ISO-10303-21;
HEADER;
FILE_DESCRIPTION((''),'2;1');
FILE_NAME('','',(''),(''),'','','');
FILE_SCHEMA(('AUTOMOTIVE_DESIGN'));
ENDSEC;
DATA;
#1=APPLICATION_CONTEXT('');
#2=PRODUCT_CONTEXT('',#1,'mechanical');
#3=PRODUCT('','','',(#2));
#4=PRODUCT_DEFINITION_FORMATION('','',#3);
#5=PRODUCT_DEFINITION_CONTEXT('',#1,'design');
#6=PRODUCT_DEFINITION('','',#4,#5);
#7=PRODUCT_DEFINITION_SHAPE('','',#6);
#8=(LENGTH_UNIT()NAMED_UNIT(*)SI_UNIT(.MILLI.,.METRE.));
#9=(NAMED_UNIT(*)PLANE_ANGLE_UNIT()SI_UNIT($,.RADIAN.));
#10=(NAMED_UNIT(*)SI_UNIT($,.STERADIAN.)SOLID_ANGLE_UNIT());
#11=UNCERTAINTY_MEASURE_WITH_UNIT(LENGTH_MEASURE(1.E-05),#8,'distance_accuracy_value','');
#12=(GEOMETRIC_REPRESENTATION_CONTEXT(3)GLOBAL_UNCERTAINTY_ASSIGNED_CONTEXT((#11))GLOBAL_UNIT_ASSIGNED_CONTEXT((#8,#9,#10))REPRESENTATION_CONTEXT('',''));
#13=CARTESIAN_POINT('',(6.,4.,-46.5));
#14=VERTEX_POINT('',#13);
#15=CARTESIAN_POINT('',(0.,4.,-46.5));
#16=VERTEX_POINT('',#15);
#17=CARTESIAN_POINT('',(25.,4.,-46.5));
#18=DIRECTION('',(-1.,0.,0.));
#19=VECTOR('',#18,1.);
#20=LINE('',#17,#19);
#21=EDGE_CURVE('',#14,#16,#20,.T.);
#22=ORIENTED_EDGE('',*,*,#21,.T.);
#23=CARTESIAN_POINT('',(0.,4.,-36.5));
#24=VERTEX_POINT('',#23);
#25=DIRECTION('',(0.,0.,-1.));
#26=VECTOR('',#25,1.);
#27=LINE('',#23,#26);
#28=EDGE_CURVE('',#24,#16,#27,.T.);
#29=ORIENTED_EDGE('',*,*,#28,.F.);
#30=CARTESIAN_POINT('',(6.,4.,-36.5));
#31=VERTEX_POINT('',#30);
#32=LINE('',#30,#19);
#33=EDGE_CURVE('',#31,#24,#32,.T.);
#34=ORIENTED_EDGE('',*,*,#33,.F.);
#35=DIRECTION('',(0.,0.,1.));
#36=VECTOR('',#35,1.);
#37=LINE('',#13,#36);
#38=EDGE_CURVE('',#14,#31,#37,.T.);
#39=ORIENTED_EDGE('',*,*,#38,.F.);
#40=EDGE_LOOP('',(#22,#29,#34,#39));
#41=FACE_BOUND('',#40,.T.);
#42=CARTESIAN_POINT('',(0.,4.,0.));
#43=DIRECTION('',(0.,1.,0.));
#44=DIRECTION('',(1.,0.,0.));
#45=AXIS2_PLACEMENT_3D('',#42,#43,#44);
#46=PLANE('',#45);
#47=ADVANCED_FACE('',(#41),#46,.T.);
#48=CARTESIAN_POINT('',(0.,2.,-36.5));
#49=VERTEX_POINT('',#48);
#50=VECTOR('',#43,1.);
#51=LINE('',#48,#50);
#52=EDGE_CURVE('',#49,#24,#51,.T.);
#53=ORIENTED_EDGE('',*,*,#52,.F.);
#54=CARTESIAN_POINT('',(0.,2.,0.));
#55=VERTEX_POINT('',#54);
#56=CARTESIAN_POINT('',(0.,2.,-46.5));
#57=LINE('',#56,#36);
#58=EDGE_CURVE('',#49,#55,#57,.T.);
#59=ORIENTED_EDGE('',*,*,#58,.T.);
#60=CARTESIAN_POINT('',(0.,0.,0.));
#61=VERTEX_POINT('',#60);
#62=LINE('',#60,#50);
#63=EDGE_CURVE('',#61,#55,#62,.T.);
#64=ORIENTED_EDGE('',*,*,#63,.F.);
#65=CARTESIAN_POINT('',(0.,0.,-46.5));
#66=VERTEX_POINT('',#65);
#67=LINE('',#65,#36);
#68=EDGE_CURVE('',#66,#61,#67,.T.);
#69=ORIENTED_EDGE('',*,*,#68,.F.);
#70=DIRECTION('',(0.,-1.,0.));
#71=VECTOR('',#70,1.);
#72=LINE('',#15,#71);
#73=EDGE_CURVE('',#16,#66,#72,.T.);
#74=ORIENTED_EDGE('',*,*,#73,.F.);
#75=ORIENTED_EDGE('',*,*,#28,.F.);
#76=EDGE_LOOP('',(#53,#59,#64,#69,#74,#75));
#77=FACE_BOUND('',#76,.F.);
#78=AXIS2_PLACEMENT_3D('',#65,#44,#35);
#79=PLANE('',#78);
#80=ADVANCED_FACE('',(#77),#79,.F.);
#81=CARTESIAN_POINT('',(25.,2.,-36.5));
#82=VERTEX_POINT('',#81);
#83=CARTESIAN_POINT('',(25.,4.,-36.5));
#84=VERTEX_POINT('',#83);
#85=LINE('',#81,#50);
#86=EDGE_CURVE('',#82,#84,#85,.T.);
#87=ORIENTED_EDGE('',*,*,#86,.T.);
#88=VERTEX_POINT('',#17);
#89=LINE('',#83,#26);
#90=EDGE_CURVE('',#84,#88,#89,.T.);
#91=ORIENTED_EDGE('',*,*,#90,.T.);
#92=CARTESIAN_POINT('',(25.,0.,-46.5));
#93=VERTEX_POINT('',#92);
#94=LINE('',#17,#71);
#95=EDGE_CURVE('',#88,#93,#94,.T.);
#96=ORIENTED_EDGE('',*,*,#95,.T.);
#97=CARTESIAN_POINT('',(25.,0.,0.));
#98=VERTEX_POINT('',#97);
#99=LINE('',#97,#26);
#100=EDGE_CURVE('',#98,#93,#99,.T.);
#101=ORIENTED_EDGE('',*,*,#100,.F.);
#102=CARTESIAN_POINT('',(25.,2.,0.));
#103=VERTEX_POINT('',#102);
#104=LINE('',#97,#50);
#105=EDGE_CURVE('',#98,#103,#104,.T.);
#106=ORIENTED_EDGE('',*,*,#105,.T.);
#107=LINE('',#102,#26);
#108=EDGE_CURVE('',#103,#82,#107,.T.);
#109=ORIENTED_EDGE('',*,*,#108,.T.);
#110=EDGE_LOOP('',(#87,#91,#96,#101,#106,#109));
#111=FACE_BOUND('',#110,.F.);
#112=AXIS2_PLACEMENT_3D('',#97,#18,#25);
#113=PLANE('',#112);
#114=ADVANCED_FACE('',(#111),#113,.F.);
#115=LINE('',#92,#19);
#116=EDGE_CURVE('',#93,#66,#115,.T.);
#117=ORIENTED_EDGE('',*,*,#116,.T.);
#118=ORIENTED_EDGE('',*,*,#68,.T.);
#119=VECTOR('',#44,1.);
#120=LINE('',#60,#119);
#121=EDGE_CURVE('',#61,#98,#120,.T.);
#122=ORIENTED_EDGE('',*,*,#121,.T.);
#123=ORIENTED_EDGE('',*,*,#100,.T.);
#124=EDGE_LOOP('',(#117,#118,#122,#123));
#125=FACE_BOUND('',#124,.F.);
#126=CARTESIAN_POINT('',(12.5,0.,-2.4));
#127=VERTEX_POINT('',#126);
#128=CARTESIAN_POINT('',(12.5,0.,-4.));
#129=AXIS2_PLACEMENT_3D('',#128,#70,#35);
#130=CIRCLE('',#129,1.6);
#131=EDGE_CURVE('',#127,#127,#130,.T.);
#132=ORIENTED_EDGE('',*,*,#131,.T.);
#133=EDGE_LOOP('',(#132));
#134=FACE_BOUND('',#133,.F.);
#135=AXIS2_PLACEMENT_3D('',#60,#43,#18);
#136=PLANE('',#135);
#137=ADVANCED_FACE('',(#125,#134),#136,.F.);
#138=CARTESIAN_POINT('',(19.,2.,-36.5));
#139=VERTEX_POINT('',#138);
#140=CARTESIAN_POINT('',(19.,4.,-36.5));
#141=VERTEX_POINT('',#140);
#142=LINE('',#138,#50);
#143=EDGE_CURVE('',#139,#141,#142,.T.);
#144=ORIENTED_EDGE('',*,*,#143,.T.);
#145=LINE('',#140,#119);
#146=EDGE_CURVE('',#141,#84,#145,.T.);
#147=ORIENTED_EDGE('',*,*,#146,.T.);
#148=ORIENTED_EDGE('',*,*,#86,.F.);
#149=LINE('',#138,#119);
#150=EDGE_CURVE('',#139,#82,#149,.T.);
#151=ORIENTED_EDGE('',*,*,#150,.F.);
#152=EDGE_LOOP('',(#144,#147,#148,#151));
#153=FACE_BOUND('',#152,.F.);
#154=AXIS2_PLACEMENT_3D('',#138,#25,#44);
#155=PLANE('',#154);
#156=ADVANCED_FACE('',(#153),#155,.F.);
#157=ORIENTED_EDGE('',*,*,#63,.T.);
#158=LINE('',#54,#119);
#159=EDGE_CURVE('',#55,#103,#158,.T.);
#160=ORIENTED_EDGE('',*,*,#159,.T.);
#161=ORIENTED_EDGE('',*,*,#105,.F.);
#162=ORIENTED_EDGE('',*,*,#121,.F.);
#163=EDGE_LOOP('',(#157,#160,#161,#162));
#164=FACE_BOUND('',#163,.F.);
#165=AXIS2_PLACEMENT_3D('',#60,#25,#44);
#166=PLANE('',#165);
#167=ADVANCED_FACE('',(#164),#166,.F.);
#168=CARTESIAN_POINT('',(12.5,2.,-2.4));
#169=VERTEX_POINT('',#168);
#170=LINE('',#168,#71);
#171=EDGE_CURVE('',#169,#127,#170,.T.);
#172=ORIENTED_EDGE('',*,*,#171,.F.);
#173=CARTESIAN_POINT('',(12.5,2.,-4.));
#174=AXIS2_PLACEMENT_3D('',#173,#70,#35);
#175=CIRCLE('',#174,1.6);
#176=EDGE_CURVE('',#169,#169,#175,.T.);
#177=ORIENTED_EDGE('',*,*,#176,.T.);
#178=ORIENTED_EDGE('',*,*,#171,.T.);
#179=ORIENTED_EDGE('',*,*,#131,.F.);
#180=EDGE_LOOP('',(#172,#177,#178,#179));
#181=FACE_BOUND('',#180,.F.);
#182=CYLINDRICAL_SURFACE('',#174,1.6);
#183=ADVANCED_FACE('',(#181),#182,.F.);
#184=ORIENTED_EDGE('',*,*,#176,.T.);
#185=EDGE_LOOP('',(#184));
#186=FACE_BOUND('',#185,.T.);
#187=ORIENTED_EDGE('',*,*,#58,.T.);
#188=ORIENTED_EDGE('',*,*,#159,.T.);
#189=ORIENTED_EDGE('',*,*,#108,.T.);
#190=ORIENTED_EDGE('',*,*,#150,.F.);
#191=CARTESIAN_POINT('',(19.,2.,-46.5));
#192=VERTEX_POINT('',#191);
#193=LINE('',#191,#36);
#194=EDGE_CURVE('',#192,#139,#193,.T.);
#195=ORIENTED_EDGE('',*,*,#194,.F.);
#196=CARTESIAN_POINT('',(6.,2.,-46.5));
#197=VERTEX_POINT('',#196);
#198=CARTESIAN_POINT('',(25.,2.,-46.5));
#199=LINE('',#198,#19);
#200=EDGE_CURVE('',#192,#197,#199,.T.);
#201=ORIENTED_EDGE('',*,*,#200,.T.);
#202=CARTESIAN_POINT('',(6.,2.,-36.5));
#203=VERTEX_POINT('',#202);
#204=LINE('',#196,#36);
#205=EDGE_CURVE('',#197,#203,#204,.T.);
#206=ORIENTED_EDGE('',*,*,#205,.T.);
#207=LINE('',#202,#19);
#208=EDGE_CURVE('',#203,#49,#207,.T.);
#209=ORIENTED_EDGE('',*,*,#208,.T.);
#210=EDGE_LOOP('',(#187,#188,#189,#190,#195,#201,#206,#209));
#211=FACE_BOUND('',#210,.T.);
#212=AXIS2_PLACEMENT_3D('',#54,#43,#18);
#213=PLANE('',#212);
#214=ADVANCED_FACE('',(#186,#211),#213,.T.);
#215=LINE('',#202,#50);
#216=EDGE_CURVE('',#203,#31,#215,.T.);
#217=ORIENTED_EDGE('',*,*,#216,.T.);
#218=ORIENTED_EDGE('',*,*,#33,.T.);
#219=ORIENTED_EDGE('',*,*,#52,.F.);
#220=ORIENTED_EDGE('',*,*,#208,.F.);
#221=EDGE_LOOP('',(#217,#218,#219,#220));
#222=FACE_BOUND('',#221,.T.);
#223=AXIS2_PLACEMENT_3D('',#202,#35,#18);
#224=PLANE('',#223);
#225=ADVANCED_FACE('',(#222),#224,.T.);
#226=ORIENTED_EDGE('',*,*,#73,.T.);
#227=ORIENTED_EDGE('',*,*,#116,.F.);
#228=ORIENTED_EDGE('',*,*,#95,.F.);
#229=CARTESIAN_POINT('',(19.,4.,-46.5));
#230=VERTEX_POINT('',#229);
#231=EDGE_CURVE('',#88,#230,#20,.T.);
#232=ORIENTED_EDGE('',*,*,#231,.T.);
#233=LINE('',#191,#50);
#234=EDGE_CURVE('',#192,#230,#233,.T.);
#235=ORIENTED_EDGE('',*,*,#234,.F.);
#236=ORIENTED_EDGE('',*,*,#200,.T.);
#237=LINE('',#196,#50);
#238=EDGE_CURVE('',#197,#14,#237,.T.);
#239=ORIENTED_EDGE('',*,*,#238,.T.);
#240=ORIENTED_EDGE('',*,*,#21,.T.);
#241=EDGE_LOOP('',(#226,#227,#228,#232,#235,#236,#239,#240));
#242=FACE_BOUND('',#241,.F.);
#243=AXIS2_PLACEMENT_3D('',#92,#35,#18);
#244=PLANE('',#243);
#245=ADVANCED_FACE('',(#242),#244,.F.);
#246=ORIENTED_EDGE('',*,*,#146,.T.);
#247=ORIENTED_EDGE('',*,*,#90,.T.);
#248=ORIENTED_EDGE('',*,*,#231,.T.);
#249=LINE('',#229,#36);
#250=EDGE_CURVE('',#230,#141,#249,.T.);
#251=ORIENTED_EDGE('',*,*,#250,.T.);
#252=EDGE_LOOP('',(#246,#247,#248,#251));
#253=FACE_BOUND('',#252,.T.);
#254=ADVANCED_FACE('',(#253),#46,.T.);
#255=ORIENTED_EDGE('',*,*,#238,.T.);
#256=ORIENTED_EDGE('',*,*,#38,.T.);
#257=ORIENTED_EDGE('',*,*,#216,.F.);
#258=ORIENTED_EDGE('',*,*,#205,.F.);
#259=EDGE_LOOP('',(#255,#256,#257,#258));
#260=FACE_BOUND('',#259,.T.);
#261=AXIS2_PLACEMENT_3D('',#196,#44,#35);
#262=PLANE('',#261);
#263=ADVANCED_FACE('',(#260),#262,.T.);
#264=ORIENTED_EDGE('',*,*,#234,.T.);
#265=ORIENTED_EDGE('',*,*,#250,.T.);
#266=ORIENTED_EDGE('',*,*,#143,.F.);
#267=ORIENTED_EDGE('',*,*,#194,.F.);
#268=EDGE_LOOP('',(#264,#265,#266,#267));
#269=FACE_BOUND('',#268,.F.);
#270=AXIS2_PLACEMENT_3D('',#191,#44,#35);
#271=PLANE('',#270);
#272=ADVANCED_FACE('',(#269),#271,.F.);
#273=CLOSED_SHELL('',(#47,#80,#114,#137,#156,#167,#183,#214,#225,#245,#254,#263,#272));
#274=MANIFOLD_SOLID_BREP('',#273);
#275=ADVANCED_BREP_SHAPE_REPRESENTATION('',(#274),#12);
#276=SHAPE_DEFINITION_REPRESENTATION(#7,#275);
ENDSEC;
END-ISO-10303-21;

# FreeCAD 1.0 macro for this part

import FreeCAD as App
import Part
import Sketcher
from FreeCAD import Vector
Q = App.Units.Quantity

doc = App.newDocument("Part")
body = doc.addObject("PartDesign::Body", "Body")

# Sketch on XZ plane
sketch1 = body.newObject("Sketcher::SketchObject", "Sketch")
sketch1.AttachmentSupport = (doc.getObject("XZ_Plane"), [""])
sketch1.MapMode = "FlatFace"
sketch1.addGeometry([
    Part.LineSegment(Vector(0, -46, 0), Vector(0, 0, 0)),
    Part.LineSegment(Vector(0, 0, 0), Vector(25, 0, 0)),
    Part.LineSegment(Vector(25, 0, 0), Vector(25, -46, 0)),
    Part.LineSegment(Vector(25, -46, 0), Vector(0, -46, 0)),
], False)
sketch1.addConstraint([
    Sketcher.Constraint("Coincident", 0, 2, 1, 1),
    Sketcher.Constraint("Coincident", 1, 2, 2, 1),
    Sketcher.Constraint("Coincident", 2, 2, 3, 1),
    Sketcher.Constraint("Coincident", 3, 2, 0, 1),
    Sketcher.Constraint("Vertical", 0),
    Sketcher.Constraint("Horizontal", 1),
    Sketcher.Constraint("Vertical", 2),
    Sketcher.Constraint("Horizontal", 3),
    Sketcher.Constraint("Coincident", 0, 2, -1, 1),
    Sketcher.Constraint("DistanceX", 1, 1, 1, 2, Q("25 mm")),
    Sketcher.Constraint("DistanceY", 0, 1, 0, 2, Q("46.5 mm")),
])
pad1 = body.newObject("PartDesign::Pad", "Pad")
pad1.Profile = sketch1
pad1.Length = 2
pad1.Reversed = True

# Sketch on XZ plane
sketch2 = body.newObject("Sketcher::SketchObject", "Sketch001")
sketch2.AttachmentSupport = (doc.getObject("XZ_Plane"), [""])
sketch2.MapMode = "FlatFace"
sketch2.AttachmentOffset = App.Placement(Vector(0, 0, -2), App.Rotation())
sketch2.addGeometry([
    Part.LineSegment(Vector(25, -36, 0), Vector(25, -46, 0)),  # 0
    Part.LineSegment(Vector(25, -46, 0), Vector(19, -46, 0)),  # 1
    Part.LineSegment(Vector(19, -46, 0), Vector(19, -36, 0)),  # 2
    Part.LineSegment(Vector(19, -36, 0), Vector(25, -36, 0)),  # 3
    Part.LineSegment(Vector(6, -36, 0), Vector(6, -46, 0)),  # 4
    Part.LineSegment(Vector(6, -46, 0), Vector(0, -46, 0)),  # 5
    Part.LineSegment(Vector(0, -46, 0), Vector(0, -36, 0)),  # 6
    Part.LineSegment(Vector(0, -36, 0), Vector(6, -36, 0)),  # 7
], False)
sketch2.addConstraint([
    Sketcher.Constraint("Coincident", 0, 2, 1, 1),
    Sketcher.Constraint("Coincident", 1, 2, 2, 1),
    Sketcher.Constraint("Coincident", 2, 2, 3, 1),
    Sketcher.Constraint("Coincident", 3, 2, 0, 1),
    Sketcher.Constraint("Coincident", 4, 2, 5, 1),
    Sketcher.Constraint("Coincident", 5, 2, 6, 1),
    Sketcher.Constraint("Coincident", 6, 2, 7, 1),
    Sketcher.Constraint("Coincident", 7, 2, 4, 1),
    Sketcher.Constraint("Vertical", 0),
    Sketcher.Constraint("Horizontal", 1),
    Sketcher.Constraint("Vertical", 2),
    Sketcher.Constraint("Horizontal", 3),
    Sketcher.Constraint("Vertical", 4),
    Sketcher.Constraint("Horizontal", 5),
    Sketcher.Constraint("Vertical", 6),
    Sketcher.Constraint("Horizontal", 7),
    Sketcher.Constraint("PointOnObject", 5, 2, -2),
    Sketcher.Constraint("Horizontal", 1, 2, 4, 2),
    Sketcher.Constraint("Horizontal", 3, 2, 6, 2),
    Sketcher.Constraint("Equal", 3, 5),
    Sketcher.Constraint("DistanceX", 1, 2, 1, 1, Q("6 mm")),
    Sketcher.Constraint("DistanceY", 0, 2, 0, 1, Q("10 mm")),
    Sketcher.Constraint("DistanceX", -1, 1, 0, 2, Q("25 mm")),
    Sketcher.Constraint("DistanceY", 0, 2, -1, 1, Q("46.5 mm")),
])
pad2 = body.newObject("PartDesign::Pad", "Pad001")
pad2.Profile = sketch2
pad2.Length = 2
pad2.Reversed = True

# Sketch on XZ plane
sketch3 = body.newObject("Sketcher::SketchObject", "Sketch002")
sketch3.AttachmentSupport = (doc.getObject("XZ_Plane"), [""])
sketch3.MapMode = "FlatFace"
sketch3.AttachmentOffset = App.Placement(Vector(0, 0, -2), App.Rotation())
sketch3.addGeometry(Part.Circle(Vector(12.5, -4, 0), Vector(0, 0, 1), 1.6), False)
sketch3.addConstraint([
    Sketcher.Constraint("Diameter", 0, Q("3.2 mm")),
    Sketcher.Constraint("DistanceY", 0, 3, -1, 1, Q("4 mm")),
    Sketcher.Constraint("DistanceX", -1, 1, 0, 3, Q("12.5 mm")),
])
doc.recompute()
hole = body.newObject("PartDesign::Hole", "Hole")
hole.Profile = sketch3
hole.ThreadType = "None"
hole.Diameter = 3.2
hole.DepthType = "ThroughAll"
hole.Reversed = True

doc.recompute()
